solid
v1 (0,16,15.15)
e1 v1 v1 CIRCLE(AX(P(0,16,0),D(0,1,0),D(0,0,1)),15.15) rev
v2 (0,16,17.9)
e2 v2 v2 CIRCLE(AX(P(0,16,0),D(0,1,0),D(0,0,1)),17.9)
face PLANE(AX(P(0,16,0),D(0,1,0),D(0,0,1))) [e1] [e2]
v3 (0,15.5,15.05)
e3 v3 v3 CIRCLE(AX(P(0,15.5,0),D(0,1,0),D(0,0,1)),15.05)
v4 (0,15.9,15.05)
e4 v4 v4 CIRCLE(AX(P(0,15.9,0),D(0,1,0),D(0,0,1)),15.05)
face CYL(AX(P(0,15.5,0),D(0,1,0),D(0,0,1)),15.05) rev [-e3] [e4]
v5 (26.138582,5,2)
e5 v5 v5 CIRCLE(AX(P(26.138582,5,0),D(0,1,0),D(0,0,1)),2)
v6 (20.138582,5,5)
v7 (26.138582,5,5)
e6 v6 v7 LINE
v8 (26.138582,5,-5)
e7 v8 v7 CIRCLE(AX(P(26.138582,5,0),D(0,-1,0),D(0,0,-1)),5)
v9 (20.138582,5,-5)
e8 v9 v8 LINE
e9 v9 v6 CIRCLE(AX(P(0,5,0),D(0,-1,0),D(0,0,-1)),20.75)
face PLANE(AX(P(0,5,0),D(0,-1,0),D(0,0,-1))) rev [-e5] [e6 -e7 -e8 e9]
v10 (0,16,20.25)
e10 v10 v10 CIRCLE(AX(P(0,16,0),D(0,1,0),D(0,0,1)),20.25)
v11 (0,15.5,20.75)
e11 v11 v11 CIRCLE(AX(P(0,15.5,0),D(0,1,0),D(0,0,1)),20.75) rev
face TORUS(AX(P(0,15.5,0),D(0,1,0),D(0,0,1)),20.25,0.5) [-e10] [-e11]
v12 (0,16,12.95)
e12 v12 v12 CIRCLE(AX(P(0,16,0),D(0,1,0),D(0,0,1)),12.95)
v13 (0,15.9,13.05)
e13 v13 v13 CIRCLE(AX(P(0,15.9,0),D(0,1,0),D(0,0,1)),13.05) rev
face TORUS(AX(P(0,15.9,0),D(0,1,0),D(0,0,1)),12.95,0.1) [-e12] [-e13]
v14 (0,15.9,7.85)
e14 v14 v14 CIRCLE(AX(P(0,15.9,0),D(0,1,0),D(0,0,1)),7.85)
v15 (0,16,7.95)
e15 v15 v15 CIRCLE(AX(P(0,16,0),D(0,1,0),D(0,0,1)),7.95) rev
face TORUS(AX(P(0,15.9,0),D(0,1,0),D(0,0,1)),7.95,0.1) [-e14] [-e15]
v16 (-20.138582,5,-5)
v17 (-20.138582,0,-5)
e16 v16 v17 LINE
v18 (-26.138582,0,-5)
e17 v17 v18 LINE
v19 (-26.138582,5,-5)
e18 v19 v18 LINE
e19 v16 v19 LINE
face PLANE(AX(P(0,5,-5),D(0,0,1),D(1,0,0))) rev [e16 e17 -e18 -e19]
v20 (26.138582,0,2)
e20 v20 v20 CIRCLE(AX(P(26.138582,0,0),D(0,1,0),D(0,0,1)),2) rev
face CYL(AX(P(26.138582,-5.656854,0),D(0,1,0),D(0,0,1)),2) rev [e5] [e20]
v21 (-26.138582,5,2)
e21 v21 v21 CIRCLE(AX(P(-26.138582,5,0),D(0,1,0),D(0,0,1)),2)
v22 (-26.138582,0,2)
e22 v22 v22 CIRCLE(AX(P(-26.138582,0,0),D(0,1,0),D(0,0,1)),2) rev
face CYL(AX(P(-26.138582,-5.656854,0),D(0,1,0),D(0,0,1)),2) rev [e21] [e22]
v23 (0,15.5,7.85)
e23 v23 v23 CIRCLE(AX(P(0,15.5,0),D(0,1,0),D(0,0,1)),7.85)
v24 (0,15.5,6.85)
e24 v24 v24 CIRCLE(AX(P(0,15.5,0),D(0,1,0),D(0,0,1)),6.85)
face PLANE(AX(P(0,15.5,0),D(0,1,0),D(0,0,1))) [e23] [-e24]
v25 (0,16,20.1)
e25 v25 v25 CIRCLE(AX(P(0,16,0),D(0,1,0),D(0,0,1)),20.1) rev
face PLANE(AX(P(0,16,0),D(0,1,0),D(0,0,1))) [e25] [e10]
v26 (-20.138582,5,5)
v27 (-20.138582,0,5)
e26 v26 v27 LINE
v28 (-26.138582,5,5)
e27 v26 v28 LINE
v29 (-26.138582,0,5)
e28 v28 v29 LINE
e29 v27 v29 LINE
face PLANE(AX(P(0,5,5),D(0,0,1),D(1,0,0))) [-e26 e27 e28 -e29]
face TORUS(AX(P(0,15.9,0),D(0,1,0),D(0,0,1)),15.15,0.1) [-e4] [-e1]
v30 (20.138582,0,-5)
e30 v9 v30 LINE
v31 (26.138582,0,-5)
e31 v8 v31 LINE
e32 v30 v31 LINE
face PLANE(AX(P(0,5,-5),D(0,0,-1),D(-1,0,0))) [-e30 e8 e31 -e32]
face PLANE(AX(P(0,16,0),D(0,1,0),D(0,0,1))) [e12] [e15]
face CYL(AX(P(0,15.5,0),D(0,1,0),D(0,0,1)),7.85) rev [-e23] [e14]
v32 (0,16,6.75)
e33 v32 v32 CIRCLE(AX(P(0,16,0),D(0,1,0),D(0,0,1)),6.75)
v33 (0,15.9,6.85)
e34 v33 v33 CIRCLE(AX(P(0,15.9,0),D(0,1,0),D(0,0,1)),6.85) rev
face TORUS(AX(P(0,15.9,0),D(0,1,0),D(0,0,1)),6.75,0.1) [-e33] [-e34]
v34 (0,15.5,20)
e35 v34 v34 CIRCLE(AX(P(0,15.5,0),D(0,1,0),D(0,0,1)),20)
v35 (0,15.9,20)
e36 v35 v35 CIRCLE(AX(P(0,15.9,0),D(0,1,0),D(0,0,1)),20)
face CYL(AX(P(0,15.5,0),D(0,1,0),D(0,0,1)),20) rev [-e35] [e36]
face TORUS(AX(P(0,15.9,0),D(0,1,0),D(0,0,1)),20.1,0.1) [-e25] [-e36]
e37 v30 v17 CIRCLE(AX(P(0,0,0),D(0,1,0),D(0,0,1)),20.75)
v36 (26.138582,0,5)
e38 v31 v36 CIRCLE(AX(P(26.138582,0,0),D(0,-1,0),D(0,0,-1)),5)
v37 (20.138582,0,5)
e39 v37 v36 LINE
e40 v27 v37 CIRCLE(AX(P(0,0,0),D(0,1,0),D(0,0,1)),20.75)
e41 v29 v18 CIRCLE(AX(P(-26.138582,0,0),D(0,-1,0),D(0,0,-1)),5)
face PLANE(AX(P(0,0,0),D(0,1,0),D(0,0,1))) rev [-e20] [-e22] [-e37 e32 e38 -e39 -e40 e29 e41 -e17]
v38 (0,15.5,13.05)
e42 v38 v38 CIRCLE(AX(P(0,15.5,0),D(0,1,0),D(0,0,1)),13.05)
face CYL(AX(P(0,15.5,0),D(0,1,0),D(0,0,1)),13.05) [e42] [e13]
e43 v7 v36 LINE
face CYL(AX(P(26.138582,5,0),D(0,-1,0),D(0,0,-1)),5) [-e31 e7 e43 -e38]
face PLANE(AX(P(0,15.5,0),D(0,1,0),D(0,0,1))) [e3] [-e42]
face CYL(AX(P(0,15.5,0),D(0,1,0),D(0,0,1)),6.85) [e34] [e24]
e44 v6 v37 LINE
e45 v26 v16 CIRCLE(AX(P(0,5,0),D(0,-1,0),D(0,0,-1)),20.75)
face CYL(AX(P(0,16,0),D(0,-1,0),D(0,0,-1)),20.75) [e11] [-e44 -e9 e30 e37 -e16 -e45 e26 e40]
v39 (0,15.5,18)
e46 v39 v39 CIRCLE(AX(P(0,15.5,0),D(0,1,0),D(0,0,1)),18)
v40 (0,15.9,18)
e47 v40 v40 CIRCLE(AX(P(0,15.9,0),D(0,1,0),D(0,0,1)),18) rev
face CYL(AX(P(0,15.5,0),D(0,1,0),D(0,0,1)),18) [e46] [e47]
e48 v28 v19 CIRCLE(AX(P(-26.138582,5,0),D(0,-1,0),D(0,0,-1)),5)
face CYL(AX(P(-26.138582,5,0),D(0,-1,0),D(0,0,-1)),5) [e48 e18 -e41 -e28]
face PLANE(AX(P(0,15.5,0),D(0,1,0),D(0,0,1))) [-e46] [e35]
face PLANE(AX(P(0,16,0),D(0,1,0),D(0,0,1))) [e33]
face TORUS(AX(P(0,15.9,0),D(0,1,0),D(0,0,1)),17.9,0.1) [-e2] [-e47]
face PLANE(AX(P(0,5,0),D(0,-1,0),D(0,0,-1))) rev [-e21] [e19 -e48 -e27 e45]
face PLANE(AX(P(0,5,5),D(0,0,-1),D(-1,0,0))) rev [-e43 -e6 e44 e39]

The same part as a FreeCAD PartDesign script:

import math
import FreeCAD as App
import Part
import Sketcher
Q = App.Units.Quantity


def edges_at(feature, points):
    """Names of the edges that pass closest to the given points."""
    edges = feature.Shape.Edges
    near = lambda p: min(range(len(edges)), key=lambda i: edges[i].distToShape(Part.Vertex(*p))[0])
    return sorted({f"Edge{near(p) + 1}" for p in points})

doc = App.newDocument("Part")
body = doc.addObject("PartDesign::Body", "Body")

sketch1 = body.newObject("Sketcher::SketchObject", "Sketch")
sketch1.AttachmentSupport = (doc.getObject("XZ_Plane"), [""])
sketch1.MapMode = "FlatFace"
sketch1.addGeometry(Part.Circle(App.Vector(0, 0, 0), App.Vector(0, 0, 1), 21), False)
sketch1.addConstraint([
    Sketcher.Constraint("Coincident", 0, 3, -1, 1),
    Sketcher.Constraint("Diameter", 0, Q("41.5 mm")),
])
pad1 = body.newObject("PartDesign::Pad", "Pad")
pad1.Profile = sketch1
pad1.Length = 16
pad1.Reversed = True

sketch2 = body.newObject("Sketcher::SketchObject", "Sketch001")
sketch2.AttachmentSupport = (doc.getObject("XZ_Plane"), [""])
sketch2.MapMode = "FlatFace"
sketch2.AttachmentOffset = App.Placement(App.Vector(0, 0, -16), App.Rotation())
sketch2.addGeometry([
    Part.Circle(App.Vector(0, 0, 0), App.Vector(0, 0, 1), 20),
    Part.Circle(App.Vector(0, 0, 0), App.Vector(0, 0, 1), 18),
    Part.Circle(App.Vector(0, 0, 0), App.Vector(0, 0, 1), 15),
    Part.Circle(App.Vector(0, 0, 0), App.Vector(0, 0, 1), 13),
    Part.Circle(App.Vector(0, 0, 0), App.Vector(0, 0, 1), 8),
    Part.Circle(App.Vector(0, 0, 0), App.Vector(0, 0, 1), 7),
], False)
sketch2.addConstraint([
    Sketcher.Constraint("Coincident", 0, 3, -1, 1),
    Sketcher.Constraint("Coincident", 1, 3, -1, 1),
    Sketcher.Constraint("Coincident", 2, 3, -1, 1),
    Sketcher.Constraint("Coincident", 3, 3, -1, 1),
    Sketcher.Constraint("Coincident", 4, 3, -1, 1),
    Sketcher.Constraint("Coincident", 5, 3, -1, 1),
    Sketcher.Constraint("Diameter", 0, Q("40 mm")),
    Sketcher.Constraint("Diameter", 1, Q("36 mm")),
    Sketcher.Constraint("Diameter", 2, Q("30.1 mm")),
    Sketcher.Constraint("Diameter", 3, Q("26.1 mm")),
    Sketcher.Constraint("Diameter", 4, Q("15.7 mm")),
    Sketcher.Constraint("Diameter", 5, Q("13.7 mm")),
])
pocket1 = body.newObject("PartDesign::Pocket", "Pocket")
pocket1.Profile = sketch2
pocket1.Length = 0.5
pocket1.Reversed = True
doc.recompute()

fillet = body.newObject("PartDesign::Fillet", "Fillet")
fillet.Base = (pocket1, edges_at(pocket1, [
    (0, 16, -18),
    (0, 16, -20),
    (0, 16, -13.05),
    (0, 16, -15.05),
    (0, 16, -6.85),
    (0, 16, -7.85),
]))
fillet.Radius = 0.1
doc.recompute()

fillet2 = body.newObject("PartDesign::Fillet", "Fillet001")
fillet2.Base = (fillet, edges_at(fillet, [(0, 16, -20.75)]))
fillet2.Radius = 0.5

sketch3 = body.newObject("Sketcher::SketchObject", "Sketch002")
sketch3.AttachmentSupport = (doc.getObject("XZ_Plane"), [""])
sketch3.MapMode = "FlatFace"
sketch3.addGeometry([
    Part.LineSegment(App.Vector(-20, 5, 0), App.Vector(-26, 5, 0)),
    Part.ArcOfCircle(Part.Circle(App.Vector(-26, 0, 0), App.Vector(0, 0, 1), 5), math.radians(90), math.radians(270)),
    Part.LineSegment(App.Vector(-26, -5, 0), App.Vector(-20, -5, 0)),
    Part.ArcOfCircle(Part.Circle(App.Vector(0, 0, 0), App.Vector(0, 0, 1), 21), math.radians(166), math.radians(194)),
    Part.ArcOfCircle(Part.Circle(App.Vector(0, 0, 0), App.Vector(0, 0, 1), 21), math.radians(-13.94), math.radians(0)),
    Part.LineSegment(App.Vector(20, -5, 0), App.Vector(26, -5, 0)),
    Part.ArcOfCircle(Part.Circle(App.Vector(26, 0, 0), App.Vector(0, 0, 1), 5), math.radians(-90), math.radians(90)),
    Part.LineSegment(App.Vector(26, 5, 0), App.Vector(20, 5, 0)),
    Part.ArcOfCircle(Part.Circle(App.Vector(0, 0, 0), App.Vector(0, 0, 1), 21), math.radians(0), math.radians(13.94)),
], False)
sketch3.addConstraint([
    Sketcher.Constraint("Tangent", 0, 2, 1, 1),
    Sketcher.Constraint("Tangent", 1, 2, 2, 1),
    Sketcher.Constraint("Coincident", 2, 2, 3, 2),
    Sketcher.Constraint("Coincident", 3, 1, 0, 1),
    Sketcher.Constraint("Coincident", 4, 1, 5, 1),
    Sketcher.Constraint("Tangent", 5, 2, 6, 1),
    Sketcher.Constraint("Tangent", 6, 2, 7, 1),
    Sketcher.Constraint("Coincident", 7, 2, 8, 2),
    Sketcher.Constraint("Tangent", 8, 1, 4, 2),
    Sketcher.Constraint("Horizontal", 0),
    Sketcher.Constraint("Horizontal", 2),
    Sketcher.Constraint("Horizontal", 5),
    Sketcher.Constraint("Horizontal", 7),
    Sketcher.Constraint("Coincident", 3, 3, -1, 1),
    Sketcher.Constraint("Coincident", 4, 3, -1, 1),
    Sketcher.Constraint("Equal", 3, 4),
    Sketcher.Constraint("Equal", 1, 6),
    Sketcher.Constraint("Equal", 4, 8),
    Sketcher.Constraint("Symmetric", 1, 3, 6, 3, -1, 1),
    Sketcher.Constraint("PointOnObject", 1, 3, -1),
    Sketcher.Constraint("PointOnObject", 8, 1, -1),
    Sketcher.Constraint("Radius", 1, Q("5 mm")),
    Sketcher.Constraint("DistanceX", 0, 2, 0, 1, Q("6 mm")),
    Sketcher.Constraint("Radius", 3, Q("20.75 mm")),
])
pad2 = body.newObject("PartDesign::Pad", "Pad001")
pad2.Profile = sketch3
pad2.Length = 5
pad2.Reversed = True

sketch4 = body.newObject("Sketcher::SketchObject", "Sketch003")
sketch4.AttachmentSupport = (doc.getObject("XZ_Plane"), [""])
sketch4.MapMode = "FlatFace"
sketch4.AttachmentOffset = App.Placement(App.Vector(0, 0, -5), App.Rotation())
sketch4.addGeometry([
    Part.Circle(App.Vector(26.1, 0, 0), App.Vector(0, 0, 1), 2),
    Part.Circle(App.Vector(-26.1, 0, 0), App.Vector(0, 0, 1), 2),
], False)
sketch4.addConstraint([
    Sketcher.Constraint("Equal", 0, 1),
    Sketcher.Constraint("Symmetric", 0, 3, 1, 3, -1, 1),
    Sketcher.Constraint("PointOnObject", 0, 3, -1),
    Sketcher.Constraint("Diameter", 0, Q("4 mm")),
    Sketcher.Constraint("DistanceX", -1, 1, 0, 3, Q("26.138582 mm")),
])
pocket2 = body.newObject("PartDesign::Pocket", "Pocket001")
pocket2.Profile = sketch4
pocket2.Length = 5
pocket2.Reversed = True

doc.recompute()
